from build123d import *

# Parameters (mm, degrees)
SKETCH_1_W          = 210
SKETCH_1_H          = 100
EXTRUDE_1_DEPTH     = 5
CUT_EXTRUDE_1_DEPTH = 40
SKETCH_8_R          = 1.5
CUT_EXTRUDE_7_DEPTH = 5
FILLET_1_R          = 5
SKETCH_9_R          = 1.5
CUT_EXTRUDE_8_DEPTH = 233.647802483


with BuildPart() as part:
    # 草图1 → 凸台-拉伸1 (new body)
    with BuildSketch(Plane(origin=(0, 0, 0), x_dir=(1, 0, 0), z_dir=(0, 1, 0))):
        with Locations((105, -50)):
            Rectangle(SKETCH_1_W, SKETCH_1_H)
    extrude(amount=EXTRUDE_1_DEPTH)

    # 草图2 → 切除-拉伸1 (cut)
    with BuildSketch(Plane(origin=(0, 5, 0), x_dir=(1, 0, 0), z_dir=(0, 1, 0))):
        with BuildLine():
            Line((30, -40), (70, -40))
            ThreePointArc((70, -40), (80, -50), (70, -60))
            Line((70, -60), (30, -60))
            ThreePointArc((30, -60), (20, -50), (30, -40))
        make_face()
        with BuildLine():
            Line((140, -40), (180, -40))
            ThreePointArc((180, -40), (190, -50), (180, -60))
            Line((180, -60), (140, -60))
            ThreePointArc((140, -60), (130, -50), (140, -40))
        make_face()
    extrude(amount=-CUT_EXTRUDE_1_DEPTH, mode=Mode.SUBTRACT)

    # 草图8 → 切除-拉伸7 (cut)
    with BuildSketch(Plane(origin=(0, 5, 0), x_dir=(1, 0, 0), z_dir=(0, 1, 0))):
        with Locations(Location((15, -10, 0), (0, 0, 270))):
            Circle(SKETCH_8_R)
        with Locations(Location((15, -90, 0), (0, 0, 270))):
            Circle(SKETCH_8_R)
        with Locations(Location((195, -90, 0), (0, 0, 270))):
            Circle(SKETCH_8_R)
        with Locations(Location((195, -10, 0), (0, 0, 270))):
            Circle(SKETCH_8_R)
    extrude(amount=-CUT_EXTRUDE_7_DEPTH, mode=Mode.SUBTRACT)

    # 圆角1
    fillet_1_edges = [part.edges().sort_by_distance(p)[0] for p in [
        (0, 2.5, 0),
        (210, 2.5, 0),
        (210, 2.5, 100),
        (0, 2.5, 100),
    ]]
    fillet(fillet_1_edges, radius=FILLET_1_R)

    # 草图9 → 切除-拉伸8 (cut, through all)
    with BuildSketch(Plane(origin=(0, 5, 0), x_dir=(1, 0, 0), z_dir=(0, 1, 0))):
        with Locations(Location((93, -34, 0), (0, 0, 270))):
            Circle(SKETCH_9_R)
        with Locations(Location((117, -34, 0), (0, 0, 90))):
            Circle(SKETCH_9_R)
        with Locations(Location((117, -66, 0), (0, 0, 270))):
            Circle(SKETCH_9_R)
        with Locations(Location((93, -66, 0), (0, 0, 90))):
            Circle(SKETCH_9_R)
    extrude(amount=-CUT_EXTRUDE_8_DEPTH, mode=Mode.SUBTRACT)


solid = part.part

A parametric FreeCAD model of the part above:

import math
import FreeCAD as App
import Part
import Sketcher
from FreeCAD import Vector


def edges_at(feature, points):
    """Names of the edges that pass closest to the given points."""
    edges = feature.Shape.Edges
    near = lambda p: min(range(len(edges)), key=lambda i: edges[i].distToShape(Part.Vertex(*p))[0])
    return sorted({f"Edge{near(p) + 1}" for p in points})


def add_polygon(sketch, points):
    """Adds a closed chain of lines whose ends are joined by coincident constraints."""
    first, n = sketch.GeometryCount, len(points)
    for a, b in zip(points, points[1:] + points[:1]):
        sketch.addGeometry(Part.LineSegment(App.Vector(*a, 0), App.Vector(*b, 0)), False)
    for i in range(n):
        sketch.addConstraint(Sketcher.Constraint("Coincident", first + i, 2, first + (i + 1) % n, 1))

doc = App.newDocument("Part")
params = doc.addObject("Spreadsheet::Sheet", "Params")
for row, (alias, value) in enumerate([
    ("sketch1_width", "210 mm"),
    ("sketch1_height", "100 mm"),
    ("pad1_length", "5 mm"),
    ("sketch2_radius", "10 mm"),
    ("sketch2_width", "40 mm"),
    ("pocket1_length", "40 mm"),
    ("sketch3_diameter", "3 mm"),
    ("pocket2_length", "5 mm"),
    ("fillet_radius", "5 mm"),
    ("sketch4_diameter", "3 mm"),
], start=1):
    params.set(f"A{row}", alias)
    params.set(f"B{row}", "=" + value)
    params.setAlias(f"B{row}", alias)

body = doc.addObject("PartDesign::Body", "Body")

# Sketch on XZ plane
sketch1 = body.newObject("Sketcher::SketchObject", "Sketch")
sketch1.AttachmentSupport = (doc.getObject("XZ_Plane"), [""])
sketch1.MapMode = "FlatFace"
add_polygon(sketch1, [(0, 0), (0, 100), (210, 100), (210, 0)])  # lines 0-3
sketch1.addConstraint([
    Sketcher.Constraint("Vertical", 0),
    Sketcher.Constraint("Horizontal", 1),
    Sketcher.Constraint("Vertical", 2),
    Sketcher.Constraint("Horizontal", 3),
    Sketcher.Constraint("Coincident", 3, 2, -1, 1),
    Sketcher.Constraint("DistanceX", 1, 1, 1, 2, 210.0),
    Sketcher.Constraint("DistanceY", 0, 1, 0, 2, 100.0),
])
sketch1.setExpression("Constraints[9]", "Params.sketch1_width")
sketch1.setExpression("Constraints[10]", "Params.sketch1_height")
pad1 = body.newObject("PartDesign::Pad", "Pad")
pad1.Profile = sketch1
pad1.setExpression("Length", "Params.pad1_length")
pad1.Reversed = True

# Sketch on XZ plane
sketch2 = body.newObject("Sketcher::SketchObject", "Sketch001")
sketch2.AttachmentSupport = (doc.getObject("XZ_Plane"), [""])
sketch2.MapMode = "FlatFace"
sketch2.AttachmentOffset = App.Placement(Vector(0, 0, -5), App.Rotation())
sketch2.addGeometry([
    Part.LineSegment(Vector(70, 40, 0), Vector(30, 40, 0)),  # 0
    Part.ArcOfCircle(Part.Circle(Vector(30, 50, 0), Vector(0, 0, 1), 10), math.radians(90), math.radians(270)),  # 1
    Part.LineSegment(Vector(30, 60, 0), Vector(70, 60, 0)),  # 2
    Part.ArcOfCircle(Part.Circle(Vector(70, 50, 0), Vector(0, 0, 1), 10), math.radians(-90), math.radians(90)),  # 3
    Part.LineSegment(Vector(180, 40, 0), Vector(140, 40, 0)),  # 4
    Part.ArcOfCircle(Part.Circle(Vector(140, 50, 0), Vector(0, 0, 1), 10), math.radians(90), math.radians(270)),  # 5
    Part.LineSegment(Vector(140, 60, 0), Vector(180, 60, 0)),  # 6
    Part.ArcOfCircle(Part.Circle(Vector(180, 50, 0), Vector(0, 0, 1), 10), math.radians(-90), math.radians(90)),  # 7
], False)
sketch2.addConstraint([
    Sketcher.Constraint("Tangent", 0, 2, 1, 2),
    Sketcher.Constraint("Tangent", 1, 1, 2, 1),
    Sketcher.Constraint("Tangent", 2, 2, 3, 2),
    Sketcher.Constraint("Tangent", 3, 1, 0, 1),
    Sketcher.Constraint("Tangent", 4, 2, 5, 2),
    Sketcher.Constraint("Tangent", 5, 1, 6, 1),
    Sketcher.Constraint("Tangent", 6, 2, 7, 2),
    Sketcher.Constraint("Tangent", 7, 1, 4, 1),
    Sketcher.Constraint("Horizontal", 0),
    Sketcher.Constraint("Horizontal", 2),
    Sketcher.Constraint("Horizontal", 4),
    Sketcher.Constraint("Horizontal", 6),
    Sketcher.Constraint("Equal", 3, 5),
    Sketcher.Constraint("Horizontal", 3, 3, 5, 3),
    Sketcher.Constraint("Equal", 2, 4),
    Sketcher.Constraint("Radius", 1, 10.0),
    Sketcher.Constraint("DistanceX", 0, 2, 0, 1, 40.0),
    Sketcher.Constraint("DistanceX", -1, 1, 1, 3, 30.0),
    Sketcher.Constraint("DistanceY", -1, 1, 1, 3, 50.0),
    Sketcher.Constraint("DistanceX", -1, 1, 5, 3, 140.0),
])
sketch2.setExpression("Constraints[15]", "Params.sketch2_radius")
sketch2.setExpression("Constraints[16]", "Params.sketch2_width")
pocket1 = body.newObject("PartDesign::Pocket", "Pocket")
pocket1.Profile = sketch2
pocket1.setExpression("Length", "Params.pocket1_length")
pocket1.Reversed = True

# Sketch on XZ plane
sketch3 = body.newObject("Sketcher::SketchObject", "Sketch002")
sketch3.AttachmentSupport = (doc.getObject("XZ_Plane"), [""])
sketch3.MapMode = "FlatFace"
sketch3.AttachmentOffset = App.Placement(Vector(0, 0, -5), App.Rotation())
sketch3.addGeometry([
    Part.Circle(Vector(15, 10, 0), Vector(0, 0, 1), 1.5),
    Part.Circle(Vector(15, 90, 0), Vector(0, 0, 1), 1.5),
    Part.Circle(Vector(195, 90, 0), Vector(0, 0, 1), 1.5),
    Part.Circle(Vector(195, 10, 0), Vector(0, 0, 1), 1.5),
], False)
sketch3.addConstraint([
    Sketcher.Constraint("Equal", 0, 1),
    Sketcher.Constraint("Equal", 1, 2),
    Sketcher.Constraint("Equal", 2, 3),
    Sketcher.Constraint("Horizontal", 1, 3, 2, 3),
    Sketcher.Constraint("Horizontal", 0, 3, 3, 3),
    Sketcher.Constraint("Vertical", 0, 3, 1, 3),
    Sketcher.Constraint("Vertical", 2, 3, 3, 3),
    Sketcher.Constraint("Diameter", 0, 3.0),
    Sketcher.Constraint("DistanceX", -1, 1, 0, 3, 15.0),
    Sketcher.Constraint("DistanceY", -1, 1, 0, 3, 10.0),
    Sketcher.Constraint("DistanceY", -1, 1, 1, 3, 90.0),
    Sketcher.Constraint("DistanceX", -1, 1, 2, 3, 195.0),
])
sketch3.setExpression("Constraints[7]", "Params.sketch3_diameter")
pocket2 = body.newObject("PartDesign::Pocket", "Pocket001")
pocket2.Profile = sketch3
pocket2.setExpression("Length", "Params.pocket2_length")
pocket2.Reversed = True
doc.recompute()

fillet = body.newObject("PartDesign::Fillet", "Fillet")
fillet.Base = (pocket2, edges_at(pocket2, [
    (0, 2.5, 0),
    (210, 2.5, 0),
    (210, 2.5, 100),
    (0, 2.5, 100),
]))
fillet.setExpression("Radius", "Params.fillet_radius")

# Sketch on XZ plane
sketch4 = body.newObject("Sketcher::SketchObject", "Sketch003")
sketch4.AttachmentSupport = (doc.getObject("XZ_Plane"), [""])
sketch4.MapMode = "FlatFace"
sketch4.AttachmentOffset = App.Placement(Vector(0, 0, -5), App.Rotation())
sketch4.addGeometry([
    Part.Circle(Vector(93, 34, 0), Vector(0, 0, 1), 1.5),
    Part.Circle(Vector(117, 34, 0), Vector(0, 0, 1), 1.5),
    Part.Circle(Vector(117, 66, 0), Vector(0, 0, 1), 1.5),
    Part.Circle(Vector(93, 66, 0), Vector(0, 0, 1), 1.5),
], False)
sketch4.addConstraint([
    Sketcher.Constraint("Equal", 0, 1),
    Sketcher.Constraint("Equal", 1, 2),
    Sketcher.Constraint("Equal", 2, 3),
    Sketcher.Constraint("Horizontal", 0, 3, 1, 3),
    Sketcher.Constraint("Horizontal", 2, 3, 3, 3),
    Sketcher.Constraint("Vertical", 1, 3, 2, 3),
    Sketcher.Constraint("Vertical", 0, 3, 3, 3),
    Sketcher.Constraint("Diameter", 0, 3.0),
    Sketcher.Constraint("DistanceX", -1, 1, 0, 3, 93.0),
    Sketcher.Constraint("DistanceY", -1, 1, 0, 3, 34.0),
    Sketcher.Constraint("DistanceX", -1, 1, 1, 3, 117.0),
    Sketcher.Constraint("DistanceY", -1, 1, 2, 3, 66.0),
])
sketch4.setExpression("Constraints[7]", "Params.sketch4_diameter")
pocket3 = body.newObject("PartDesign::Pocket", "Pocket002")
pocket3.Profile = sketch4
pocket3.Type = "ThroughAll"
pocket3.Reversed = True

doc.recompute()
